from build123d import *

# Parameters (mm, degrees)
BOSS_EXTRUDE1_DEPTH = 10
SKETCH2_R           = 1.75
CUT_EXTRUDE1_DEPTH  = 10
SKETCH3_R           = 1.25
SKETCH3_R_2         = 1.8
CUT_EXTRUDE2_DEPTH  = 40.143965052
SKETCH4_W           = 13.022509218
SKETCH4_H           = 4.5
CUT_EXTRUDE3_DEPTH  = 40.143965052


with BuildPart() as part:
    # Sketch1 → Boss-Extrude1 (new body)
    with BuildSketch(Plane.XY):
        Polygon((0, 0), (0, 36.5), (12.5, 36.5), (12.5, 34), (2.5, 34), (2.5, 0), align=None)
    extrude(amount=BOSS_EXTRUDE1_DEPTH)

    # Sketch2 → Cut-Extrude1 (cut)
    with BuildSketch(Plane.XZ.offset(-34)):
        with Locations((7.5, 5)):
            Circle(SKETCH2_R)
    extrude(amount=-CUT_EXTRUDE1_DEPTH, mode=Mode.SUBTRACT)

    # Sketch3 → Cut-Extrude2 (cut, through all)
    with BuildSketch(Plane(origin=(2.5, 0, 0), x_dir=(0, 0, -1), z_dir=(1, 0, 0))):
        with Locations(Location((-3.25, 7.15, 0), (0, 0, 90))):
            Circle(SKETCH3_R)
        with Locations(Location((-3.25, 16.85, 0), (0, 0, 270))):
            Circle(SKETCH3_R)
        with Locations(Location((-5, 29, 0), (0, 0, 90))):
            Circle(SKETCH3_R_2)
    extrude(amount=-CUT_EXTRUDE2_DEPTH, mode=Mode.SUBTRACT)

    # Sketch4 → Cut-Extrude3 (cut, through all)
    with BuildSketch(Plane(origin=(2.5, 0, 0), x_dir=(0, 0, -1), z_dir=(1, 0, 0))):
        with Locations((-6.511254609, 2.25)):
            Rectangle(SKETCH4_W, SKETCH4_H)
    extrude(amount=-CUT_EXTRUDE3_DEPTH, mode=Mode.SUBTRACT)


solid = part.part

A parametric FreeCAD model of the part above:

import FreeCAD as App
import Part
import Sketcher
from FreeCAD import Vector
Q = App.Units.Quantity


def add_polygon(sketch, points):
    """Adds a closed chain of lines whose ends are joined by coincident constraints."""
    first, n = sketch.GeometryCount, len(points)
    for a, b in zip(points, points[1:] + points[:1]):
        sketch.addGeometry(Part.LineSegment(App.Vector(*a, 0), App.Vector(*b, 0)), False)
    for i in range(n):
        sketch.addConstraint(Sketcher.Constraint("Coincident", first + i, 2, first + (i + 1) % n, 1))

doc = App.newDocument("Part")
params = doc.addObject("Spreadsheet::Sheet", "Params")
for row, (alias, value) in enumerate([
    ("sketch1_width", "10 mm"),
    ("sketch1_height", "34 mm"),
    ("sketch1_width2", "2.5 mm"),
    ("pad1_length", "10 mm"),
    ("sketch2_diameter", "3.5 mm"),
    ("pocket1_length", "10 mm"),
    ("sketch3_diameter", "2.5 mm"),
    ("sketch3_diameter2", "3.6 mm"),
    ("sketch4_width", "4.5 mm"),
], start=1):
    params.set(f"A{row}", alias)
    params.set(f"B{row}", "=" + value)
    params.setAlias(f"B{row}", alias)

body = doc.addObject("PartDesign::Body", "Body")

# Sketch on XY plane
sketch1 = body.newObject("Sketcher::SketchObject", "Sketch")
sketch1.AttachmentSupport = (doc.getObject("XY_Plane"), [""])
sketch1.MapMode = "FlatFace"
add_polygon(sketch1, [(0, 36.5), (0, 0), (2.5, 0), (2.5, 34), (12.5, 34), (12.5, 36.5)])  # lines 0-5
sketch1.addConstraint([
    Sketcher.Constraint("Vertical", 0),
    Sketcher.Constraint("Horizontal", 1),
    Sketcher.Constraint("Vertical", 2),
    Sketcher.Constraint("Horizontal", 3),
    Sketcher.Constraint("Vertical", 4),
    Sketcher.Constraint("Horizontal", 5),
    Sketcher.Constraint("Coincident", 0, 2, -1, 1),
    Sketcher.Constraint("Equal", 1, 4),
    Sketcher.Constraint("DistanceX", 3, 1, 3, 2, Q("10 mm")),
    Sketcher.Constraint("DistanceY", 2, 1, 2, 2, Q("34 mm")),
    Sketcher.Constraint("DistanceX", 1, 1, 1, 2, Q("2.5 mm")),
])
sketch1.setExpression("Constraints[14]", "Params.sketch1_width")
sketch1.setExpression("Constraints[15]", "Params.sketch1_height")
sketch1.setExpression("Constraints[16]", "Params.sketch1_width2")
pad1 = body.newObject("PartDesign::Pad", "Pad")
pad1.Profile = sketch1
pad1.setExpression("Length", "Params.pad1_length")

# Sketch on XZ plane
sketch2 = body.newObject("Sketcher::SketchObject", "Sketch001")
sketch2.AttachmentSupport = (doc.getObject("XZ_Plane"), [""])
sketch2.MapMode = "FlatFace"
sketch2.AttachmentOffset = App.Placement(Vector(0, 0, -34), App.Rotation())
sketch2.addGeometry(Part.Circle(Vector(7.5, 5, 0), Vector(0, 0, 1), 1.75), False)
sketch2.addConstraint([
    Sketcher.Constraint("Diameter", 0, Q("3.5 mm")),
    Sketcher.Constraint("DistanceY", -1, 1, 0, 3, Q("5 mm")),
    Sketcher.Constraint("DistanceX", -1, 1, 0, 3, Q("7.5 mm")),
])
sketch2.setExpression("Constraints[0]", "Params.sketch2_diameter")
pocket1 = body.newObject("PartDesign::Pocket", "Pocket")
pocket1.Profile = sketch2
pocket1.setExpression("Length", "Params.pocket1_length")

# Sketch on YZ plane
sketch3 = body.newObject("Sketcher::SketchObject", "Sketch002")
sketch3.AttachmentSupport = (doc.getObject("YZ_Plane"), [""])
sketch3.MapMode = "FlatFace"
sketch3.AttachmentOffset = App.Placement(Vector(0, 0, 2.5), App.Rotation())
sketch3.addGeometry([
    Part.Circle(Vector(7.15, 3.25, 0), Vector(0, 0, 1), 1.25),
    Part.Circle(Vector(16.85, 3.25, 0), Vector(0, 0, 1), 1.25),
    Part.Circle(Vector(29, 5, 0), Vector(0, 0, 1), 1.8),
], False)
sketch3.addConstraint([
    Sketcher.Constraint("Equal", 0, 1),
    Sketcher.Constraint("Horizontal", 0, 3, 1, 3),
    Sketcher.Constraint("Diameter", 0, Q("2.5 mm")),
    Sketcher.Constraint("Diameter", 2, Q("3.6 mm")),
    Sketcher.Constraint("DistanceX", -1, 1, 2, 3, Q("29 mm")),
    Sketcher.Constraint("DistanceY", -1, 1, 2, 3, Q("5 mm")),
    Sketcher.Constraint("DistanceX", 0, 3, 1, 3, Q("9.7 mm")),
    Sketcher.Constraint("DistanceX", -1, 1, 0, 3, Q("7.15 mm")),
    Sketcher.Constraint("DistanceY", -1, 1, 0, 3, Q("3.25 mm")),
])
sketch3.setExpression("Constraints[2]", "Params.sketch3_diameter")
sketch3.setExpression("Constraints[3]", "Params.sketch3_diameter2")
pocket2 = body.newObject("PartDesign::Pocket", "Pocket001")
pocket2.Profile = sketch3
pocket2.Type = "ThroughAll"

# Sketch on YZ plane
sketch4 = body.newObject("Sketcher::SketchObject", "Sketch003")
sketch4.AttachmentSupport = (doc.getObject("YZ_Plane"), [""])
sketch4.MapMode = "FlatFace"
sketch4.AttachmentOffset = App.Placement(Vector(0, 0, 2.5), App.Rotation())
add_polygon(sketch4, [(4.5, 13.022509), (0, 13.022509), (0, 0), (4.5, 0)])  # lines 0-3
sketch4.addConstraint([
    Sketcher.Constraint("Horizontal", 0),
    Sketcher.Constraint("Vertical", 1),
    Sketcher.Constraint("Horizontal", 2),
    Sketcher.Constraint("Vertical", 3),
    Sketcher.Constraint("Coincident", 1, 2, -1, 1),
    Sketcher.Constraint("DistanceX", 0, 2, 0, 1, Q("4.5 mm")),
    Sketcher.Constraint("DistanceY", 1, 2, 1, 1, Q("13.022509 mm")),
])
sketch4.setExpression("Constraints[9]", "Params.sketch4_width")
pocket3 = body.newObject("PartDesign::Pocket", "Pocket002")
pocket3.Profile = sketch4
pocket3.Type = "ThroughAll"

doc.recompute()
